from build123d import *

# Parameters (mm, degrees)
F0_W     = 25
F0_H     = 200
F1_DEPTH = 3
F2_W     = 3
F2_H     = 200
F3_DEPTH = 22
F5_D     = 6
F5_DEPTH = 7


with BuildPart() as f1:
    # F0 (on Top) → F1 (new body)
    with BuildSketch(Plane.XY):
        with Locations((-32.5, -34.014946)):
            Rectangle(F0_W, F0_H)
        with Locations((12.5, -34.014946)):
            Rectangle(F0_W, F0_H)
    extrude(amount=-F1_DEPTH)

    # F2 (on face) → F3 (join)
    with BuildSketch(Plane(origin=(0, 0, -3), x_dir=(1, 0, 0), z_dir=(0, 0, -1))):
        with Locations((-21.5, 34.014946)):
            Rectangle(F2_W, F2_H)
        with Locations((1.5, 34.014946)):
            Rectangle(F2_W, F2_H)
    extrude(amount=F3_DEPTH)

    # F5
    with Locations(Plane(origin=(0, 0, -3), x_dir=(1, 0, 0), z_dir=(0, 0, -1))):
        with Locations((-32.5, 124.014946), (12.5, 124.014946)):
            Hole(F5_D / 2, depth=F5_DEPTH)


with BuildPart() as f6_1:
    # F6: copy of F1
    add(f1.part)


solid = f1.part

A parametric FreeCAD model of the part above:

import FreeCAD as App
import Part
import Sketcher
from FreeCAD import Vector
Q = App.Units.Quantity


def add_polygon(sketch, points):
    """Adds a closed chain of lines whose ends are joined by coincident constraints."""
    first, n = sketch.GeometryCount, len(points)
    for a, b in zip(points, points[1:] + points[:1]):
        sketch.addGeometry(Part.LineSegment(App.Vector(*a, 0), App.Vector(*b, 0)), False)
    for i in range(n):
        sketch.addConstraint(Sketcher.Constraint("Coincident", first + i, 2, first + (i + 1) % n, 1))

doc = App.newDocument("Part")
params = doc.addObject("Spreadsheet::Sheet", "Params")
for row, (alias, value) in enumerate([
    ("sketch1_width", "25 mm"),
    ("sketch1_height", "200 mm"),
    ("pad1_length", "3 mm"),
    ("sketch2_width", "3 mm"),
    ("sketch2_height", "200 mm"),
    ("pad2_length", "22 mm"),
    ("sketch3_diameter", "6 mm"),
    ("hole_diameter", "6 mm"),
    ("hole_depth", "7 mm"),
], start=1):
    params.set(f"A{row}", alias)
    params.set(f"B{row}", "=" + value)
    params.setAlias(f"B{row}", alias)

body = doc.addObject("PartDesign::Body", "Body")
body.AllowCompound = True

sketch1 = body.newObject("Sketcher::SketchObject", "Sketch")
sketch1.AttachmentSupport = (doc.getObject("XY_Plane"), [""])
sketch1.MapMode = "FlatFace"
add_polygon(sketch1, [(-45, 65.985054), (-45, -134.014946), (-20, -134.014946), (-20, 65.985054)])
add_polygon(sketch1, [(0, 65.985054), (0, -134.014946), (25, -134.014946), (25, 65.985054)])
sketch1.addConstraint([
    Sketcher.Constraint("Vertical", 0),
    Sketcher.Constraint("Horizontal", 1),
    Sketcher.Constraint("Vertical", 2),
    Sketcher.Constraint("Horizontal", 3),
    Sketcher.Constraint("Vertical", 4),
    Sketcher.Constraint("Horizontal", 5),
    Sketcher.Constraint("Vertical", 6),
    Sketcher.Constraint("Horizontal", 7),
    Sketcher.Constraint("PointOnObject", 4, 2, -2),
    Sketcher.Constraint("Horizontal", 1, 2, 4, 2),
    Sketcher.Constraint("Horizontal", 3, 2, 6, 2),
    Sketcher.Constraint("Equal", 3, 5),
    Sketcher.Constraint("DistanceX", 1, 1, 1, 2, Q("25 mm")),
    Sketcher.Constraint("DistanceY", 0, 2, 0, 1, Q("200 mm")),
    Sketcher.Constraint("DistanceX", 0, 2, -1, 1, Q("45 mm")),
    Sketcher.Constraint("DistanceY", 0, 2, -1, 1, Q("134.014946 mm")),
])
sketch1.setExpression("Constraints[20]", "Params.sketch1_width")
sketch1.setExpression("Constraints[21]", "Params.sketch1_height")
pad1 = body.newObject("PartDesign::Pad", "Pad")
pad1.Profile = sketch1
pad1.setExpression("Length", "Params.pad1_length")
pad1.Reversed = True

sketch2 = body.newObject("Sketcher::SketchObject", "Sketch001")
sketch2.AttachmentSupport = (doc.getObject("XY_Plane"), [""])
sketch2.MapMode = "FlatFace"
sketch2.AttachmentOffset = App.Placement(Vector(0, 0, -3), App.Rotation())
add_polygon(sketch2, [(-23, -134.014946), (-23, 65.985054), (-20, 65.985054), (-20, -134.014946)])
add_polygon(sketch2, [(0, -134.014946), (0, 65.985054), (3, 65.985054), (3, -134.014946)])
sketch2.addConstraint([
    Sketcher.Constraint("Vertical", 0),
    Sketcher.Constraint("Horizontal", 1),
    Sketcher.Constraint("Vertical", 2),
    Sketcher.Constraint("Horizontal", 3),
    Sketcher.Constraint("Vertical", 4),
    Sketcher.Constraint("Horizontal", 5),
    Sketcher.Constraint("Vertical", 6),
    Sketcher.Constraint("Horizontal", 7),
    Sketcher.Constraint("PointOnObject", 4, 2, -2),
    Sketcher.Constraint("Horizontal", 1, 2, 4, 2),
    Sketcher.Constraint("Horizontal", 3, 2, 6, 2),
    Sketcher.Constraint("Equal", 3, 5),
    Sketcher.Constraint("DistanceX", 1, 1, 1, 2, Q("3 mm")),
    Sketcher.Constraint("DistanceY", 0, 1, 0, 2, Q("200 mm")),
    Sketcher.Constraint("DistanceX", 0, 2, -1, 1, Q("23 mm")),
    Sketcher.Constraint("DistanceY", -1, 1, 0, 2, Q("65.985054 mm")),
])
sketch2.setExpression("Constraints[20]", "Params.sketch2_width")
sketch2.setExpression("Constraints[21]", "Params.sketch2_height")
pad2 = body.newObject("PartDesign::Pad", "Pad001")
pad2.Profile = sketch2
pad2.setExpression("Length", "Params.pad2_length")
pad2.Reversed = True

sketch3 = body.newObject("Sketcher::SketchObject", "Sketch002")
sketch3.AttachmentSupport = (doc.getObject("XY_Plane"), [""])
sketch3.MapMode = "FlatFace"
sketch3.AttachmentOffset = App.Placement(Vector(0, 0, -3), App.Rotation())
sketch3.addGeometry([
    Part.Circle(Vector(-32.5, -124.014946, 0), Vector(0, 0, 1), 3),
    Part.Circle(Vector(12.5, -124.014946, 0), Vector(0, 0, 1), 3),
], False)
sketch3.addConstraint([
    Sketcher.Constraint("Equal", 0, 1),
    Sketcher.Constraint("Horizontal", 0, 3, 1, 3),
    Sketcher.Constraint("Diameter", 0, Q("6 mm")),
    Sketcher.Constraint("DistanceX", 0, 3, 1, 3, Q("45 mm")),
    Sketcher.Constraint("DistanceX", 0, 3, -1, 1, Q("32.5 mm")),
    Sketcher.Constraint("DistanceY", 0, 3, -1, 1, Q("124.014946 mm")),
])
sketch3.setExpression("Constraints[2]", "Params.sketch3_diameter")
doc.recompute()
hole = body.newObject("PartDesign::Hole", "Hole")
hole.Profile = sketch3
hole.ThreadType = "None"
hole.setExpression("Diameter", "Params.hole_diameter")
hole.DepthType = "Dimension"
hole.setExpression("Depth", "Params.hole_depth")
hole.DrillPoint = "Flat"
hole.Reversed = True
body2 = doc.addObject("PartDesign::Body", "Body001")
body2.AllowCompound = True
doc.recompute()

body2.BaseFeature = body
doc.recompute()
body.Visibility = False

doc.recompute()
